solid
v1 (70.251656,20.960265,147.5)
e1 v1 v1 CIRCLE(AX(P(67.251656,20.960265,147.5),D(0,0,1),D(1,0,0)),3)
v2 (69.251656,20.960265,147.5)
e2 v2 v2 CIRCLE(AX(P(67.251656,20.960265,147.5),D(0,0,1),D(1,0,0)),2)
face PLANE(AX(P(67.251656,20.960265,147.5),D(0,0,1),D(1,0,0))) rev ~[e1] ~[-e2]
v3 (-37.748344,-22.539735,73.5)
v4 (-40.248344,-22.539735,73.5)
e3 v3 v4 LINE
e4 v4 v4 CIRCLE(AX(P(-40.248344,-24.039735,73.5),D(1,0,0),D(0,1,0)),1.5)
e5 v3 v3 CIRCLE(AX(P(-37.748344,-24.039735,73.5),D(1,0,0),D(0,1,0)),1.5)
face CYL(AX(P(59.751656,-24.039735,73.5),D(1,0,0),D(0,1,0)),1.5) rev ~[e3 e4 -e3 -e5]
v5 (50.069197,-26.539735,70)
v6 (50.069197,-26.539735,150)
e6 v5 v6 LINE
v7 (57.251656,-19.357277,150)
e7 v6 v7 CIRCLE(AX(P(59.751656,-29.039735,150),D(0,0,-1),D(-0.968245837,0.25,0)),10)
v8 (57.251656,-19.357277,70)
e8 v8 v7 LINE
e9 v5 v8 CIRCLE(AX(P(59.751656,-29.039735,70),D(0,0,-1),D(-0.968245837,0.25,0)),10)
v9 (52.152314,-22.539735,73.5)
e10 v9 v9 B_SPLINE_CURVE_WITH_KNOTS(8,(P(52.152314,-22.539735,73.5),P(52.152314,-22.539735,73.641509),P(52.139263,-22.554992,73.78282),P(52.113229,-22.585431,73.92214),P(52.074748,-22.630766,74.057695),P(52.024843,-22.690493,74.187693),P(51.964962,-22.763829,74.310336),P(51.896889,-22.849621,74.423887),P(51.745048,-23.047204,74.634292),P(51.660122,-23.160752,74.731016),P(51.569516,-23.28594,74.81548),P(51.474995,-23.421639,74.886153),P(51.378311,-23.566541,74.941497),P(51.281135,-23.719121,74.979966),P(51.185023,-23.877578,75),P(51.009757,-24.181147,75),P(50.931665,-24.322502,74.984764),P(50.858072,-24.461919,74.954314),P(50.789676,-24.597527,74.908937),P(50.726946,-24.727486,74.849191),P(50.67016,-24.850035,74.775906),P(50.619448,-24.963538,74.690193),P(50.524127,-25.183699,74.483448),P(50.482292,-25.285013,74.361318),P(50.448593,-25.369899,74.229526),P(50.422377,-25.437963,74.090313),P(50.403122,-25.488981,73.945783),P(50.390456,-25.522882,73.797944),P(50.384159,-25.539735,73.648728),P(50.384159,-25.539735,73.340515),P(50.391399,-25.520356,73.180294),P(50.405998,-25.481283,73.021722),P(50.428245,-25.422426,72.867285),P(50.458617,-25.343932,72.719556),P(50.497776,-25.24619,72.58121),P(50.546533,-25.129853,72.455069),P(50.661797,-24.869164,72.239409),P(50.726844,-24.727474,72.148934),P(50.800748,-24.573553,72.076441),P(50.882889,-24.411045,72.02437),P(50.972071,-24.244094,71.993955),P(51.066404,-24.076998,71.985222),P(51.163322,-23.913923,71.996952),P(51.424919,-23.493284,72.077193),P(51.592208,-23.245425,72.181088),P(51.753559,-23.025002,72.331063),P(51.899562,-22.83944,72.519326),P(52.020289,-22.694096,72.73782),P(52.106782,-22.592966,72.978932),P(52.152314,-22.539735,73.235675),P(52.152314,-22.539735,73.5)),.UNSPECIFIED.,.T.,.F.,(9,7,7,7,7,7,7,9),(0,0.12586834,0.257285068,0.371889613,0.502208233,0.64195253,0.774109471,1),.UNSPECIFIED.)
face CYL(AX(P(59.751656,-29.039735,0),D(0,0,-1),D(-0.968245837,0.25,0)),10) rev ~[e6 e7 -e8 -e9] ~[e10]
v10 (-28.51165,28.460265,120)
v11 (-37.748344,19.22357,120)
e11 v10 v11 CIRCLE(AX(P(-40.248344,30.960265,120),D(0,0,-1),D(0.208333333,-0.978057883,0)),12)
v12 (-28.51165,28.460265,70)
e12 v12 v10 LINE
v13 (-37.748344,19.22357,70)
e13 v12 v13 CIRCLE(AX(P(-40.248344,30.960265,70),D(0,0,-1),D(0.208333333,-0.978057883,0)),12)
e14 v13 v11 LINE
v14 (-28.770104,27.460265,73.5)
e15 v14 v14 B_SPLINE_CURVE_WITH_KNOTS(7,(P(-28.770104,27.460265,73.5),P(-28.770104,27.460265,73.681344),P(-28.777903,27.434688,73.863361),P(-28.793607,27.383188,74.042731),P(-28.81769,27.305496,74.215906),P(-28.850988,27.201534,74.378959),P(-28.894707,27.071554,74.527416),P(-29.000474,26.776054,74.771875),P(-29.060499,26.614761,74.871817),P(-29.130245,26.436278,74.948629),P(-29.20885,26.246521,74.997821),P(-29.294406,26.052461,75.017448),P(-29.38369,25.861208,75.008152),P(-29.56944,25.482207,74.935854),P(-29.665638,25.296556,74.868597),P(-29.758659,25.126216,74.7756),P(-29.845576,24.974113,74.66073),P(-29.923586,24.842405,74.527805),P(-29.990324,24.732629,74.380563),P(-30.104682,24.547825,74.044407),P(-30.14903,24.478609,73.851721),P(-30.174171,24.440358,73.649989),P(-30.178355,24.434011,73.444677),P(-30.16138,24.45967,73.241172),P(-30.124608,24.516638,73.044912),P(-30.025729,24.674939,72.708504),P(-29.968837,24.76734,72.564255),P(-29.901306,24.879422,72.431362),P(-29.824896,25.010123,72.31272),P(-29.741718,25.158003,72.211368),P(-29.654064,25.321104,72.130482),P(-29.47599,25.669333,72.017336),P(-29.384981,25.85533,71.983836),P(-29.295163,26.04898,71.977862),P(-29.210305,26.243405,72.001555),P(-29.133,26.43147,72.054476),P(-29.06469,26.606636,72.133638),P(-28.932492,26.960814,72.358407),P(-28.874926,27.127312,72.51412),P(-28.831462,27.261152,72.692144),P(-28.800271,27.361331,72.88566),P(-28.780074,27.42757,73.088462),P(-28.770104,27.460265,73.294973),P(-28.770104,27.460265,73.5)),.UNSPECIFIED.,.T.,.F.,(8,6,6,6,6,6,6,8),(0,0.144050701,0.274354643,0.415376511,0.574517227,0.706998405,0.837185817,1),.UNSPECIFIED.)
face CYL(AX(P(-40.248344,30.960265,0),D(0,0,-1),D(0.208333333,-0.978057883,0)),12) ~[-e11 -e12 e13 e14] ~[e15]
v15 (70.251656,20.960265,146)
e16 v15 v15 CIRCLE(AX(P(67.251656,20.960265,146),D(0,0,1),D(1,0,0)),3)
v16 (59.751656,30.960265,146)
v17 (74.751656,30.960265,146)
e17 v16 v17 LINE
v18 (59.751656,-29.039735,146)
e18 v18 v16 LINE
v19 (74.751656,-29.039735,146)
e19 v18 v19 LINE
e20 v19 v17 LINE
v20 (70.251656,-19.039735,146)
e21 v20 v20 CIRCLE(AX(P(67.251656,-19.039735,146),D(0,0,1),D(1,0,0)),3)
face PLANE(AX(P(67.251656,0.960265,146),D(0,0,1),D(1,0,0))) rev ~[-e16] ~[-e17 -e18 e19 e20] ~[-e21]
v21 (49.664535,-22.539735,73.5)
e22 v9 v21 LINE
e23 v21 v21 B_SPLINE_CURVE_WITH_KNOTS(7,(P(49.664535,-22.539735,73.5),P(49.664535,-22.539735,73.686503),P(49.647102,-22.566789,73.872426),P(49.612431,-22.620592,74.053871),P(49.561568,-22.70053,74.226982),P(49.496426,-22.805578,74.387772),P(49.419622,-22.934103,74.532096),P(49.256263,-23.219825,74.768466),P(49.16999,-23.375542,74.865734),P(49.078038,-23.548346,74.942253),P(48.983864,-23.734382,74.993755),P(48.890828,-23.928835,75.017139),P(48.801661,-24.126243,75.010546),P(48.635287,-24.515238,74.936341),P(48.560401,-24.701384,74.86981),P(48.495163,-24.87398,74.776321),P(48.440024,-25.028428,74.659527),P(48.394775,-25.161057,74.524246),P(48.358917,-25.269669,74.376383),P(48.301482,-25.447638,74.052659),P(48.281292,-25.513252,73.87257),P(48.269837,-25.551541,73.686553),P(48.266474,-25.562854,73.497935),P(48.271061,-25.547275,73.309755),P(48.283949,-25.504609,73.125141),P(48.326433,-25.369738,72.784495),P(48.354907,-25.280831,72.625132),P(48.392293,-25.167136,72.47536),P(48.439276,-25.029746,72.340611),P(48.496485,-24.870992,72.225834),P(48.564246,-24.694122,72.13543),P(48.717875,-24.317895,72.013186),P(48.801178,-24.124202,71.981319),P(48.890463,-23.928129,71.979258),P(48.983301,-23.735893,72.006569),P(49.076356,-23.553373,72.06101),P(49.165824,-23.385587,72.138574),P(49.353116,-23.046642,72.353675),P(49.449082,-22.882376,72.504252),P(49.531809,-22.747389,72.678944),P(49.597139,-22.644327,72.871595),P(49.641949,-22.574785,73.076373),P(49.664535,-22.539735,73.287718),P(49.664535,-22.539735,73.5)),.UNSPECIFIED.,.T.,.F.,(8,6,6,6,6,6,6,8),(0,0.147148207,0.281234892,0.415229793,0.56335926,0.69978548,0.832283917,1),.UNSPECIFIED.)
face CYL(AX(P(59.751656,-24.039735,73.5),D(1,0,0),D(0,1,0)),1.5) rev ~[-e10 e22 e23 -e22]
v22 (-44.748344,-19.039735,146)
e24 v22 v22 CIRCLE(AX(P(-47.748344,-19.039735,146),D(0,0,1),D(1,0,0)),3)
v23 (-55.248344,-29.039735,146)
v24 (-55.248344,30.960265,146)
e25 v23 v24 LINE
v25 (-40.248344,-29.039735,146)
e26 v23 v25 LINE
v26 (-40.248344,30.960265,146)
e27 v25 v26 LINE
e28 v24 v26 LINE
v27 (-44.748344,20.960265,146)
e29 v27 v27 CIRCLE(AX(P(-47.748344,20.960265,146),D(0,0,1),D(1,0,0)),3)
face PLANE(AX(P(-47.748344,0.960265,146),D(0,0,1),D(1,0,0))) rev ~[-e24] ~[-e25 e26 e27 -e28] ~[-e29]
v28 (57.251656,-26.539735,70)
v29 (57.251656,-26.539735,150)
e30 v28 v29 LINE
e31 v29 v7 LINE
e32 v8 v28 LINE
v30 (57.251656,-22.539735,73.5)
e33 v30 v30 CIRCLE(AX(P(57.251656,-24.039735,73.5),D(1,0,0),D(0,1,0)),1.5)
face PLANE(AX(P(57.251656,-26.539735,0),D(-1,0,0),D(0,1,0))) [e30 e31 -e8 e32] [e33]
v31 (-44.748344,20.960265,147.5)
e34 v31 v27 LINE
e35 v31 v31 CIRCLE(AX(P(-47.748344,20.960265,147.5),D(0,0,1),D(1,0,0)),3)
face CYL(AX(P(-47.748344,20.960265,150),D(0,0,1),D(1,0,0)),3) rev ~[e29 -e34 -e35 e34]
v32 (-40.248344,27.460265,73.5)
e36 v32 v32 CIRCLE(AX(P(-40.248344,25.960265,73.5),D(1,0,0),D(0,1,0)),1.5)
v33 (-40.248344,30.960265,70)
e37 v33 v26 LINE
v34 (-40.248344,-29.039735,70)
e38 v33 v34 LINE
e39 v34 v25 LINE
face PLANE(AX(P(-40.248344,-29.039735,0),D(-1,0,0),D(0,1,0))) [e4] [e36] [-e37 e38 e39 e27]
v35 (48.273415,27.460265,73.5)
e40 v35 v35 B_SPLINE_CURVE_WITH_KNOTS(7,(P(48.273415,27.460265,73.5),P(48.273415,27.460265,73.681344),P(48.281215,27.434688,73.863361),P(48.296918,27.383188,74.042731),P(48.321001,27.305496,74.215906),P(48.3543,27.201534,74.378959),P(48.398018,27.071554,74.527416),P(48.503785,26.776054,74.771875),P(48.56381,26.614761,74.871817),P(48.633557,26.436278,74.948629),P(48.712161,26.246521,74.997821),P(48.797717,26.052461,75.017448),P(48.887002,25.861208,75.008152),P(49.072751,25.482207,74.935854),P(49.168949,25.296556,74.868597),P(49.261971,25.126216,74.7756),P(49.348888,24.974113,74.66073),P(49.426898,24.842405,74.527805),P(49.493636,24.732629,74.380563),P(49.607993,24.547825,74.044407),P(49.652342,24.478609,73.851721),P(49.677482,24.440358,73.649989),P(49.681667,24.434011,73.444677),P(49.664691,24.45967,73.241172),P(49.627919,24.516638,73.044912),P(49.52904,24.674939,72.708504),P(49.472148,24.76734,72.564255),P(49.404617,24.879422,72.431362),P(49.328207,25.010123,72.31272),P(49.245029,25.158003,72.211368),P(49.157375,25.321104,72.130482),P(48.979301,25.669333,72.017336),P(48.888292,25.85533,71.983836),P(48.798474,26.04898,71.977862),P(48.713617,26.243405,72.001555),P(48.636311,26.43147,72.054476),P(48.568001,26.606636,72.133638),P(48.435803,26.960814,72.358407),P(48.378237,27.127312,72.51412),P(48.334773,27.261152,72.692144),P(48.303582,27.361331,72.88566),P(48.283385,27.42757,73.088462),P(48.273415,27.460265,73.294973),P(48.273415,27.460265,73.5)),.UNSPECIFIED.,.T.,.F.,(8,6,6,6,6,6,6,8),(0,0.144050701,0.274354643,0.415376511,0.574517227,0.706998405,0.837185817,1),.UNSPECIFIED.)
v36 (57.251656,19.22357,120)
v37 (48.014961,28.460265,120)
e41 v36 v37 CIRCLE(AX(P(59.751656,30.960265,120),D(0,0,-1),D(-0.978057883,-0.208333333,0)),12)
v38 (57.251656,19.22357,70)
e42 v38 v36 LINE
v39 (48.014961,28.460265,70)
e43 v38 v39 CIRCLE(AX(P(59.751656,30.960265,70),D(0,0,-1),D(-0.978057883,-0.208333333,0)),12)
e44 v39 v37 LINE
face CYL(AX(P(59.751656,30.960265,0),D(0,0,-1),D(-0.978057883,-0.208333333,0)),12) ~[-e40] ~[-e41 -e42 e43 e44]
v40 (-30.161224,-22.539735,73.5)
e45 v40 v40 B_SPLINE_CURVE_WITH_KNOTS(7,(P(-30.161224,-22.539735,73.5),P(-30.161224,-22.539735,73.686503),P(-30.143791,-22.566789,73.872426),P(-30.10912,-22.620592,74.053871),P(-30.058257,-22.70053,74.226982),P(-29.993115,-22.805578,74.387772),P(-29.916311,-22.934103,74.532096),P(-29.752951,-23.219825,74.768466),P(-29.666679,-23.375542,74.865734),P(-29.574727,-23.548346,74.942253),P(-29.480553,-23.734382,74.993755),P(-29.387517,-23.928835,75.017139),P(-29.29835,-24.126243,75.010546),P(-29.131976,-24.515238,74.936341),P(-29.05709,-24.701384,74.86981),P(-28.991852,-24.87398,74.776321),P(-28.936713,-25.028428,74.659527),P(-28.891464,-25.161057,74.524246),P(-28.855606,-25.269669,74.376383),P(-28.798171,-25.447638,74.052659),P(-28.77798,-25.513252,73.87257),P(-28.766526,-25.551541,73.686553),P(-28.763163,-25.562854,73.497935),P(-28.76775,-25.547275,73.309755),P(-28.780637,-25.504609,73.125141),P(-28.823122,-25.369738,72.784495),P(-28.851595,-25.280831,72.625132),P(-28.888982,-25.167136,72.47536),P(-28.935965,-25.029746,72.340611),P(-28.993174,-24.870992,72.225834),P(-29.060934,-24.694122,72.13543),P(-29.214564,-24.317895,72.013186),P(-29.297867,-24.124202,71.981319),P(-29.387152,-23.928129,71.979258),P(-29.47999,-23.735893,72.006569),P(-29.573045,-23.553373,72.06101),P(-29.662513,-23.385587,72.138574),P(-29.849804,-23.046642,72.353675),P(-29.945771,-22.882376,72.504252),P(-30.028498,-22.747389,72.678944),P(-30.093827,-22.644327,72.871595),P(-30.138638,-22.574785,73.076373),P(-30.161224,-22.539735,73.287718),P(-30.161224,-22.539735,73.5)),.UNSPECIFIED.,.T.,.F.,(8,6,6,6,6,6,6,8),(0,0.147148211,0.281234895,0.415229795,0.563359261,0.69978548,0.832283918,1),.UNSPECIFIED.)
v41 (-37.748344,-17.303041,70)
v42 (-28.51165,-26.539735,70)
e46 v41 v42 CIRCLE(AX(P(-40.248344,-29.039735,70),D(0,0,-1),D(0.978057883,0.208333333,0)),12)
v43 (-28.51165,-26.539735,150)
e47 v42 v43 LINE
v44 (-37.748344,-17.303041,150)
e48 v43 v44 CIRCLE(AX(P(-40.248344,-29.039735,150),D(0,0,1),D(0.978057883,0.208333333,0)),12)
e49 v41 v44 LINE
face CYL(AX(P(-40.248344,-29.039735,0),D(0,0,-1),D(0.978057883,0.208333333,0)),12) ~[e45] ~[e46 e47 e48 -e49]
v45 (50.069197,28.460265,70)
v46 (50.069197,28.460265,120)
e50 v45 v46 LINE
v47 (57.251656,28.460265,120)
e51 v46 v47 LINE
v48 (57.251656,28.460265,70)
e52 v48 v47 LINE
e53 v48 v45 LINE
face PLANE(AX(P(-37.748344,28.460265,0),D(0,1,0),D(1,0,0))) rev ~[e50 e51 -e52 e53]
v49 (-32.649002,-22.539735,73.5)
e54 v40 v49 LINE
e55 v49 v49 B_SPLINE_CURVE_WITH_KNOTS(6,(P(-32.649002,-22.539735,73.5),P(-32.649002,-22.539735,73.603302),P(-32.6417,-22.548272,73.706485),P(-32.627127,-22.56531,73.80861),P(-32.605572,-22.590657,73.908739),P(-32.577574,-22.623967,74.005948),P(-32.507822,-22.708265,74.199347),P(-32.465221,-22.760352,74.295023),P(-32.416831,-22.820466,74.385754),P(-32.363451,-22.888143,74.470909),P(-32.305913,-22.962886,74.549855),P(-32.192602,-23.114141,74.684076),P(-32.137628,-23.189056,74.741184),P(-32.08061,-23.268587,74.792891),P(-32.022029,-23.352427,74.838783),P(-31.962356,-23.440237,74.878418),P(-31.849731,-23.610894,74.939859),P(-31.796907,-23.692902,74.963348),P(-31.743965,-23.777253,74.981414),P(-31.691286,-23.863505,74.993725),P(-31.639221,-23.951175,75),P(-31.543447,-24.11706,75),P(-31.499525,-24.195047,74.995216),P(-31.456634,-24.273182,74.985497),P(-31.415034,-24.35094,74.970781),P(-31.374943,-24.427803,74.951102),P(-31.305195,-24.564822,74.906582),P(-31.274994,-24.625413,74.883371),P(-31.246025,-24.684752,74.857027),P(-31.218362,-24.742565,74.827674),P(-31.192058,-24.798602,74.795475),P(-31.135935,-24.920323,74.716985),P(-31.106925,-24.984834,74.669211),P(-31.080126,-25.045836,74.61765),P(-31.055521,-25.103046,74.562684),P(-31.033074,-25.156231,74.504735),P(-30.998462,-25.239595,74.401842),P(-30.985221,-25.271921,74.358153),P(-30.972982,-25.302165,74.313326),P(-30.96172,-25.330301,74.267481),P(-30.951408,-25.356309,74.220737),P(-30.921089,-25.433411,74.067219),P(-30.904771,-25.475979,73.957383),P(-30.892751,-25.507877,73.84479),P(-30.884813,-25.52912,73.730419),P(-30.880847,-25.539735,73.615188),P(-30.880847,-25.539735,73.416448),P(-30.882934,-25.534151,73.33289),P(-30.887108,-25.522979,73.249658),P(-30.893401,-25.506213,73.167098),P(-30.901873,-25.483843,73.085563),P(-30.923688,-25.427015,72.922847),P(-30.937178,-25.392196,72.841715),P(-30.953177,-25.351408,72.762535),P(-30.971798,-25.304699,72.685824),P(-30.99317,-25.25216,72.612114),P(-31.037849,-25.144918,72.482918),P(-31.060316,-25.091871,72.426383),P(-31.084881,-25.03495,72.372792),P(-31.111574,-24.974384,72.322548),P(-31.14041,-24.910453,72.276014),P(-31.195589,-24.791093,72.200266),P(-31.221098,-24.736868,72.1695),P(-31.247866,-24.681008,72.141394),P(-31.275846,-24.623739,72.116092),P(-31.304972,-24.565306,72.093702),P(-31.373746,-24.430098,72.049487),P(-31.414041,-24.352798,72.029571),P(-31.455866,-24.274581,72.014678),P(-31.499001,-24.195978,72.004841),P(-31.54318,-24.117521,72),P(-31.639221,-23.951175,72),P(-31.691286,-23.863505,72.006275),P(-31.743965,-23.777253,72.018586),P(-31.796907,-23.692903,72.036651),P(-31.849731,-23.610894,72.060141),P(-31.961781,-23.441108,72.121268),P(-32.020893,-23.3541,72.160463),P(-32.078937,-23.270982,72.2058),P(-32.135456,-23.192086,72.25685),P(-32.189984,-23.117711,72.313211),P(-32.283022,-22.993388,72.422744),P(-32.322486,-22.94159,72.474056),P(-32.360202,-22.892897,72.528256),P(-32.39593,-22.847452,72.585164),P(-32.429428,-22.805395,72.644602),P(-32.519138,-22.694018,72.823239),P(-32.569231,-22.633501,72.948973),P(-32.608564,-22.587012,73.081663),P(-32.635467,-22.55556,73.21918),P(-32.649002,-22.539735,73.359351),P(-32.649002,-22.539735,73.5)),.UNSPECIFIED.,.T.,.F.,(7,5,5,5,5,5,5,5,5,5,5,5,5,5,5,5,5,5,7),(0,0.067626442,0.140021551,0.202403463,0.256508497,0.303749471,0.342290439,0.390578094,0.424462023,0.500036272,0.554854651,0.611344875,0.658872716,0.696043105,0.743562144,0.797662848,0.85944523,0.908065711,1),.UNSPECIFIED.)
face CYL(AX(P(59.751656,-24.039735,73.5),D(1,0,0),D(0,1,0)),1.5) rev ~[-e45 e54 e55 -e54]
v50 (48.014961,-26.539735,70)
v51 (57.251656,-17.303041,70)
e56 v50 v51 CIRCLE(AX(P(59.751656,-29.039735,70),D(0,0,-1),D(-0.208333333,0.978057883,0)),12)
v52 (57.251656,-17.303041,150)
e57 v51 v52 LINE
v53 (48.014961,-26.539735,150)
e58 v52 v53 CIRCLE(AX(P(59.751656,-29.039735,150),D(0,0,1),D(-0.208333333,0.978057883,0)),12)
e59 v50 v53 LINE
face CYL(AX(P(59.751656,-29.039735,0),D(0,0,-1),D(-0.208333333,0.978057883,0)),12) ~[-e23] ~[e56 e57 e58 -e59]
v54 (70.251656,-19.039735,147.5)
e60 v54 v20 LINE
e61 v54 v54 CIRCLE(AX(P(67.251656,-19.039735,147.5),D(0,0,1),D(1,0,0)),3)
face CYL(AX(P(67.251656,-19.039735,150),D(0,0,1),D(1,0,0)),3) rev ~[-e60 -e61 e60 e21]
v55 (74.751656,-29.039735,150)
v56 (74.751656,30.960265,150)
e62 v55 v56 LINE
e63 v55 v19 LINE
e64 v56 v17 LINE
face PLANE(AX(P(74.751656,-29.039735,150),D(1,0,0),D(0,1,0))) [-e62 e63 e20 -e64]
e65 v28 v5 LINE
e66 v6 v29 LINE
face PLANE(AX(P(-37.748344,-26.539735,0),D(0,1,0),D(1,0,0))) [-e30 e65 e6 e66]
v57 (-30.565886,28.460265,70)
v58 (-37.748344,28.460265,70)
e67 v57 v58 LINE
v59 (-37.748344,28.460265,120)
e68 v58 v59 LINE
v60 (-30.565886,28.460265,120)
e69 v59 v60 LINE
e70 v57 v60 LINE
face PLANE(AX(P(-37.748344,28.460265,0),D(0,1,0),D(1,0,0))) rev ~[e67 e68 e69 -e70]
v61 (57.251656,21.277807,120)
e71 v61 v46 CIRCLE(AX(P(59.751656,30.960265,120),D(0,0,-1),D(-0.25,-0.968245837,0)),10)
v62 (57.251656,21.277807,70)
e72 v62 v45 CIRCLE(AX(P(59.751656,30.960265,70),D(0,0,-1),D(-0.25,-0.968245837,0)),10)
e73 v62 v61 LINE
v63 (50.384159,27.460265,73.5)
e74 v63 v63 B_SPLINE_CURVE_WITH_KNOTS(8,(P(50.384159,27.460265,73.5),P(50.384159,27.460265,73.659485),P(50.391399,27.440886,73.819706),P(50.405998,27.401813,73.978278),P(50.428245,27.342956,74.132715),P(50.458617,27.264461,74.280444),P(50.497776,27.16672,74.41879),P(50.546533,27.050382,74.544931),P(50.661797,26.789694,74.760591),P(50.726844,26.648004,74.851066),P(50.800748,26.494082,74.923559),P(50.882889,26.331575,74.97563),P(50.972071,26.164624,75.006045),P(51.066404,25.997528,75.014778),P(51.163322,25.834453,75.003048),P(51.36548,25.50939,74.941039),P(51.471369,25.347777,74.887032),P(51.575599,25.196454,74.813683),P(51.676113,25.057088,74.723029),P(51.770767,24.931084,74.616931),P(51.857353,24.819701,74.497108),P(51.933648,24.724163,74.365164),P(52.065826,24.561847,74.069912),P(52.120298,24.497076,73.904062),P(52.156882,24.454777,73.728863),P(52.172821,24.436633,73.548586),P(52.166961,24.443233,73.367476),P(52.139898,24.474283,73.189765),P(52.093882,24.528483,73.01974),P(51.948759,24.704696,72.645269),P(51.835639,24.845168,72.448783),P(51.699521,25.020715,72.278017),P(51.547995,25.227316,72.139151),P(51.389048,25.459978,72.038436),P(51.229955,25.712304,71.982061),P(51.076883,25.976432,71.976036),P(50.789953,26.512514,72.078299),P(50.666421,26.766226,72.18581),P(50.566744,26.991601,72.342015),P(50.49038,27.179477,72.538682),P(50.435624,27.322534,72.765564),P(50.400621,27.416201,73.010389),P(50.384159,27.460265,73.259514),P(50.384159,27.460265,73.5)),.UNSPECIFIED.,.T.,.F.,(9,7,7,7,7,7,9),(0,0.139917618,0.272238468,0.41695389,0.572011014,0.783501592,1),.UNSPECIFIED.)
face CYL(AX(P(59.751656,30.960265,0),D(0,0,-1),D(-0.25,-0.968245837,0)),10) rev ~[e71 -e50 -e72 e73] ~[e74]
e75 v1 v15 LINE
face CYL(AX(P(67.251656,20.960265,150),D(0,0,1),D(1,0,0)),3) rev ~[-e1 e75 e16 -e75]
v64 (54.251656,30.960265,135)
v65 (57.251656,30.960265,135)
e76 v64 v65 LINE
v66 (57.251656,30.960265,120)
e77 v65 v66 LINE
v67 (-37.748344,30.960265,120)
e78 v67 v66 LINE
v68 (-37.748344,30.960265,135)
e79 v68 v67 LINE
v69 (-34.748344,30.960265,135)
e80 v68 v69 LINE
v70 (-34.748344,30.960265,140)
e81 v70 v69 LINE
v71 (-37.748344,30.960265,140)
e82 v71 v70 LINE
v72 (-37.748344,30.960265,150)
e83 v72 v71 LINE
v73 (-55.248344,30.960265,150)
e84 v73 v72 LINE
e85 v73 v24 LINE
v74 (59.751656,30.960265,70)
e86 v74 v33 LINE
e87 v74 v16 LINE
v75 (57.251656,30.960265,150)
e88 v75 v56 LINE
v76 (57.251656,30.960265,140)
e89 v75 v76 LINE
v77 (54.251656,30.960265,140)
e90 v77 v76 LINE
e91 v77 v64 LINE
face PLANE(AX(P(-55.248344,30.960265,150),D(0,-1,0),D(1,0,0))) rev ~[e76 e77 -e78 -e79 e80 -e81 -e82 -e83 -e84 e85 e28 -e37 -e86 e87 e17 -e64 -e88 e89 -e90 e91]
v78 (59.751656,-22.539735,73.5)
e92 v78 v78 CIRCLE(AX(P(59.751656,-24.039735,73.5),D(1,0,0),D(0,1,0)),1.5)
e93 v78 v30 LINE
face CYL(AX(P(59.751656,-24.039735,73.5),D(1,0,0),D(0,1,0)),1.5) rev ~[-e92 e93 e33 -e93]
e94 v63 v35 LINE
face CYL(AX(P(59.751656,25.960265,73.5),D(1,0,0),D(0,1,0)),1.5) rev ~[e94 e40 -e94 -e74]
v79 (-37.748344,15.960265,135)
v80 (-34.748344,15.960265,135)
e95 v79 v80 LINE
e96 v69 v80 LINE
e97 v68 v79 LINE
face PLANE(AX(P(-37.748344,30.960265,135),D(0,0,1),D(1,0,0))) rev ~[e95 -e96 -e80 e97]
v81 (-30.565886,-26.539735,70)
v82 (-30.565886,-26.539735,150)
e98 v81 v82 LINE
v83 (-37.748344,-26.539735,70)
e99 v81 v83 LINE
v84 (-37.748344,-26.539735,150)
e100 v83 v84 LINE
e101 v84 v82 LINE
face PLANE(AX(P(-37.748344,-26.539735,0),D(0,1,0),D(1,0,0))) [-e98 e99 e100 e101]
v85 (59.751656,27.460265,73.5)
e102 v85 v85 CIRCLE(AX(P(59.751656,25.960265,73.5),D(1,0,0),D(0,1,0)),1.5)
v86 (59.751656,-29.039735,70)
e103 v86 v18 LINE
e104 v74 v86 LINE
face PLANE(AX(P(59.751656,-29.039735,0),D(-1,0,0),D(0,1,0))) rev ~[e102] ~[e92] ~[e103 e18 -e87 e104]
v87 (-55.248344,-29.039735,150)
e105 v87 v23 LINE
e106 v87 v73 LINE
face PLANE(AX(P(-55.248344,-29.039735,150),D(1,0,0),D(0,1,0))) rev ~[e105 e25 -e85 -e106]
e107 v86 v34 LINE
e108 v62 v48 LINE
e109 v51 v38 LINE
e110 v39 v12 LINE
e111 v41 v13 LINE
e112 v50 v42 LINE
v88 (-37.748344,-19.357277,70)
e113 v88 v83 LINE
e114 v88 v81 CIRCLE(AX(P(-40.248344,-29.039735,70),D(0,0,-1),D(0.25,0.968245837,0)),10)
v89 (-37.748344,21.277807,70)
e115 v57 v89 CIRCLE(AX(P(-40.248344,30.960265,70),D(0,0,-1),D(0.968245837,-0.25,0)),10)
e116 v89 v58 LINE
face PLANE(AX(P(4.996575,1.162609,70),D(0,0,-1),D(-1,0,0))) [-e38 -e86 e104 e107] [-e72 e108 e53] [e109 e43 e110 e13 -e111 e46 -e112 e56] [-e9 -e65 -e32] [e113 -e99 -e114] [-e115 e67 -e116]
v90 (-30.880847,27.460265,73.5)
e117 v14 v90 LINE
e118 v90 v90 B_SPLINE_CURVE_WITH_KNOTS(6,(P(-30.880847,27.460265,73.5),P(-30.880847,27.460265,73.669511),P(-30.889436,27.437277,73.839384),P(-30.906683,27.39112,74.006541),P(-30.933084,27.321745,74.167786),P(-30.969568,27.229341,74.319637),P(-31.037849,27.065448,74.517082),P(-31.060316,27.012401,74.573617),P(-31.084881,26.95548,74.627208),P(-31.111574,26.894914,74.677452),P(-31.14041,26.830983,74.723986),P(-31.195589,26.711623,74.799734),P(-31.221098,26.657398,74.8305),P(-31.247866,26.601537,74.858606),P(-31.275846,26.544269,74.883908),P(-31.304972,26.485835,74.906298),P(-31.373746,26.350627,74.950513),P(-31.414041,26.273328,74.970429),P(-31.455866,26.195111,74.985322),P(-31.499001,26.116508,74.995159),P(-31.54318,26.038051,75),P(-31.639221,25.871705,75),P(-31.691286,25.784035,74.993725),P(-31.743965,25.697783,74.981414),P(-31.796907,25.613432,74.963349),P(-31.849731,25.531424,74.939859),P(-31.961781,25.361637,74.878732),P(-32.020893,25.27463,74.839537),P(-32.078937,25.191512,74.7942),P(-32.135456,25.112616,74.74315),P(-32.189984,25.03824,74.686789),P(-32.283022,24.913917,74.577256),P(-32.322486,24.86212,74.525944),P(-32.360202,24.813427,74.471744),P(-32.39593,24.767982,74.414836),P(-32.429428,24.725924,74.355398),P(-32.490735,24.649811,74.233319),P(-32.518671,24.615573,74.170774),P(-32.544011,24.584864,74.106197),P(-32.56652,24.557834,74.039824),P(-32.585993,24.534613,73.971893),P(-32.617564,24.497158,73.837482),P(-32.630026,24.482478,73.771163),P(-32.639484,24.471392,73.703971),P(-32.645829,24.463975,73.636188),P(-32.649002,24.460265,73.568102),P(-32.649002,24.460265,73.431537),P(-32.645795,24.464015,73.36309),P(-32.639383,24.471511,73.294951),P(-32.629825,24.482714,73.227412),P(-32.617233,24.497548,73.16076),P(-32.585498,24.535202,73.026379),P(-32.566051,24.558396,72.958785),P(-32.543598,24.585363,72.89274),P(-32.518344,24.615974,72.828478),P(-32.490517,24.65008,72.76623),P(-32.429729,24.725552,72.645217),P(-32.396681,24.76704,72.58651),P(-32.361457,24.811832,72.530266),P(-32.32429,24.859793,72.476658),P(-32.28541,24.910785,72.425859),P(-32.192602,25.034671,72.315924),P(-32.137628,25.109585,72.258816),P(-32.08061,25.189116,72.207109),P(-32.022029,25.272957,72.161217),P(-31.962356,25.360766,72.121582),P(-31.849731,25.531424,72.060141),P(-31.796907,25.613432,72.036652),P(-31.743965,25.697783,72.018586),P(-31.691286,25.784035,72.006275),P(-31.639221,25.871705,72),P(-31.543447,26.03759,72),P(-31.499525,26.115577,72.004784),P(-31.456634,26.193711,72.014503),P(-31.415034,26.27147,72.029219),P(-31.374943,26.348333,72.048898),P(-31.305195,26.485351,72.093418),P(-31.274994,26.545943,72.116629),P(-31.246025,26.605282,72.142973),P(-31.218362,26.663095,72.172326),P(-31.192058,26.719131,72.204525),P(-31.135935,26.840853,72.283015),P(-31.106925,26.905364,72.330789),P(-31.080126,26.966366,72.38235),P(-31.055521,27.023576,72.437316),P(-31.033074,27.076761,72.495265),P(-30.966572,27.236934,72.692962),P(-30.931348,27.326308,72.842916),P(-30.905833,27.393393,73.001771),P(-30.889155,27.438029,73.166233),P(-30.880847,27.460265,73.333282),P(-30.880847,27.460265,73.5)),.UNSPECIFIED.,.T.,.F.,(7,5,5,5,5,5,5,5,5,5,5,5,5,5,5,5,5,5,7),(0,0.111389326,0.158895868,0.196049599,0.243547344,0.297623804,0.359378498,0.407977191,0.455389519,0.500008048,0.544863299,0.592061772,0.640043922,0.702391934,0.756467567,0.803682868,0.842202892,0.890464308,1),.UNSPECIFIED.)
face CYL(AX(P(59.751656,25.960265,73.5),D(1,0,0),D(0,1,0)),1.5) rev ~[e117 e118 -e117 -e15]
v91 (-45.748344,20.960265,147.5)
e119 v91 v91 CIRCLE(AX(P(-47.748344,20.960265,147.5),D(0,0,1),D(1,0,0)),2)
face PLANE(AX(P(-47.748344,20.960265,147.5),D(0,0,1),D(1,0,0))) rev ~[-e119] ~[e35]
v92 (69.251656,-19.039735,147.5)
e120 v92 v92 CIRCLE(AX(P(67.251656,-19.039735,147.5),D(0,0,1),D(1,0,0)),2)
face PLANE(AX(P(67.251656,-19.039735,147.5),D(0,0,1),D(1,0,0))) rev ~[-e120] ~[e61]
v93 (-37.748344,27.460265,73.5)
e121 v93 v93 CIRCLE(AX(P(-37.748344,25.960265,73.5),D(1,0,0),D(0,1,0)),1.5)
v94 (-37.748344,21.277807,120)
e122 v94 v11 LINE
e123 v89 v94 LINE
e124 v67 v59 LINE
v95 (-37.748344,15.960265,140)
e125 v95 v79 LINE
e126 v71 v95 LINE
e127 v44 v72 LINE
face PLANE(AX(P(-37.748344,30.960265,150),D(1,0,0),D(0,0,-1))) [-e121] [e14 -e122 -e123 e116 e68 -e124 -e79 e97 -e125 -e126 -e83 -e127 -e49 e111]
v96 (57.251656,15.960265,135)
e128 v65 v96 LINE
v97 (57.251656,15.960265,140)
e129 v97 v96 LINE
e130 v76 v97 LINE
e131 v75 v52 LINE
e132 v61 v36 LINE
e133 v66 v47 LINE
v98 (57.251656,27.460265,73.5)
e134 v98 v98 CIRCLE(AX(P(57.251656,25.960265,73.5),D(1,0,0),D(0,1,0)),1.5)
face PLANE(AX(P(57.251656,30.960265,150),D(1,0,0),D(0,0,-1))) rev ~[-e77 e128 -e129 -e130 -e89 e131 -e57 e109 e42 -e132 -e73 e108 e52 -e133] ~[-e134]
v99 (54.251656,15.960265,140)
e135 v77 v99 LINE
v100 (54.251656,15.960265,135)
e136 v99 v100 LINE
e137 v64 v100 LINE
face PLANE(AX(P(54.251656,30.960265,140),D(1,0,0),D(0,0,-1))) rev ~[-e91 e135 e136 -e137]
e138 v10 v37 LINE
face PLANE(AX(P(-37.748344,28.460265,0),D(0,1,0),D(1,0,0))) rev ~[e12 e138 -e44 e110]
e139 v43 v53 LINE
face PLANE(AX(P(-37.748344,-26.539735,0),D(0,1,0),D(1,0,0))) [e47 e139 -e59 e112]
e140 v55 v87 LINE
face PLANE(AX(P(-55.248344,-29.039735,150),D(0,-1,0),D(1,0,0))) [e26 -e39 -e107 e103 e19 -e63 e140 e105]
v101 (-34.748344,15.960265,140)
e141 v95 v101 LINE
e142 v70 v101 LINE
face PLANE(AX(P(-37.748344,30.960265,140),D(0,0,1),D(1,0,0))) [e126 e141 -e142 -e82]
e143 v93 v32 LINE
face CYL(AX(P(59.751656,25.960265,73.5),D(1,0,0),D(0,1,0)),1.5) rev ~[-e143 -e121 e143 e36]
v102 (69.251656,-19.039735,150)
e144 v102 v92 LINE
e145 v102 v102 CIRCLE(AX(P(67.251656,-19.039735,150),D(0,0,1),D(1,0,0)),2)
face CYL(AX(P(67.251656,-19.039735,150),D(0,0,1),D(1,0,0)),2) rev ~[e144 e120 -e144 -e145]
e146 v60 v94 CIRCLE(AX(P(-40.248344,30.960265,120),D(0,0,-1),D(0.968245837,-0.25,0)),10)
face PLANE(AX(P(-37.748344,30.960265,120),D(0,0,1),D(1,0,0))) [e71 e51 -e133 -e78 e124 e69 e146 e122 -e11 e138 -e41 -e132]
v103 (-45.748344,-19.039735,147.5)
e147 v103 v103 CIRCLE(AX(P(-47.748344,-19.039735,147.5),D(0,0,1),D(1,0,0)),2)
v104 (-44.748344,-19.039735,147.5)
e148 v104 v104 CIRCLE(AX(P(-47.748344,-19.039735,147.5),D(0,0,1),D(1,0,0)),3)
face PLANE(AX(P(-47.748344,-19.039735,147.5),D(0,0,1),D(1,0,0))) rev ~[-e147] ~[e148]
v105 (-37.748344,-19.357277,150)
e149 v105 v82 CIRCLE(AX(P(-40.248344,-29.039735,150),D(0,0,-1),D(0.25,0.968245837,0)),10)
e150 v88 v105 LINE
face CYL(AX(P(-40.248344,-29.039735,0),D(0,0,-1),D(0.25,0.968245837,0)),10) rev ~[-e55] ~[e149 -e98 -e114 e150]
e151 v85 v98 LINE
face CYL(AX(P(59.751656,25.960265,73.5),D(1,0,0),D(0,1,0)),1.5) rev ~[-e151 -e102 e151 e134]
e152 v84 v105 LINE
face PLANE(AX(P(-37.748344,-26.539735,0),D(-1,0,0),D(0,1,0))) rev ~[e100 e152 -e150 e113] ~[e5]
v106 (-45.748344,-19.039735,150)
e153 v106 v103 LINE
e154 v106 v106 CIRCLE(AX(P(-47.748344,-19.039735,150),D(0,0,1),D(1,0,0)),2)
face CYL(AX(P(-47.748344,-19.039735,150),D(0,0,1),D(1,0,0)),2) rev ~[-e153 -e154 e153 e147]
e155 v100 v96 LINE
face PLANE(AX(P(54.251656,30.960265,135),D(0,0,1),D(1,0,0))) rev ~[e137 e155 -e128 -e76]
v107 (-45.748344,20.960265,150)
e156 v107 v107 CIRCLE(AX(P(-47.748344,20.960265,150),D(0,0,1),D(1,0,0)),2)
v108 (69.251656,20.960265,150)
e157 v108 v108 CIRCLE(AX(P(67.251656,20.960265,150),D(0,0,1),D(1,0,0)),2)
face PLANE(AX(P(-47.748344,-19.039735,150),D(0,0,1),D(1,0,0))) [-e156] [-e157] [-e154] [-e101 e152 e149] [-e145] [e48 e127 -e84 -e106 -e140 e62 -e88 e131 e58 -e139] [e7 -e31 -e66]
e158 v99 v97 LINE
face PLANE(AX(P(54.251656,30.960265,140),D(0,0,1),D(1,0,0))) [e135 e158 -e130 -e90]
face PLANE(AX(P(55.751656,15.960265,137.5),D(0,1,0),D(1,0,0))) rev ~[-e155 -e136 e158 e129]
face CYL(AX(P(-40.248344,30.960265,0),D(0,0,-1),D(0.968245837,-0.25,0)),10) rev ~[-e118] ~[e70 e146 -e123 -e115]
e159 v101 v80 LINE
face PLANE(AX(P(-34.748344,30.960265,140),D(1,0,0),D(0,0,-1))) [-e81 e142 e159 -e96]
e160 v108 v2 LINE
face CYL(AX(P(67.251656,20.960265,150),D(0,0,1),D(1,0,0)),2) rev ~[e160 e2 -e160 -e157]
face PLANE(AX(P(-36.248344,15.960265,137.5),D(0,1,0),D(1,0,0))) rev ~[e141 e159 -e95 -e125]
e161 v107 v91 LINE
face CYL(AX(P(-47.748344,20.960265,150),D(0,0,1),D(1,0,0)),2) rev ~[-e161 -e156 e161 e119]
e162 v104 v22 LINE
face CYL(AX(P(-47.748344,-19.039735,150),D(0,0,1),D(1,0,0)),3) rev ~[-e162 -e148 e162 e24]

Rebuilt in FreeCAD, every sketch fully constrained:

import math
import FreeCAD as App
import Part
import Sketcher

V = App.Vector

doc = App.newDocument("Part")
body = doc.addObject("PartDesign::Body", "Body")

sketch1 = body.newObject("Sketcher::SketchObject", "Sketch")
sketch1.AttachmentSupport = (doc.getObject("XY_Plane"), [""])
sketch1.MapMode = "FlatFace"
sketch1.addGeometry([
    Part.LineSegment(V(-40, 31, 0), V(-40, -29, 0)),
    Part.LineSegment(V(-40, -29, 0), V(60, -29, 0)),
    Part.LineSegment(V(60, -29, 0), V(60, 31, 0)),
    Part.LineSegment(V(60, 31, 0), V(-40, 31, 0)),
    Part.LineSegment(V(-31, -27, 0), V(-38, -27, 0)),
    Part.LineSegment(V(-38, -27, 0), V(-38, -19, 0)),
    Part.ArcOfCircle(Part.Circle(V(-40, -29, 0), V(0, 0, 1), 10), math.radians(14), math.radians(76)),
    Part.LineSegment(V(48, -27, 0), V(-29, -27, 0)),
    Part.ArcOfCircle(Part.Circle(V(-40, -29, 0), V(0, 0, 1), 12), math.radians(12), math.radians(78)),
    Part.LineSegment(V(-38, -17, 0), V(-38, 19, 0)),
    Part.ArcOfCircle(Part.Circle(V(-40, 31, 0), V(0, 0, 1), 12), math.radians(-78), math.radians(-12)),
    Part.LineSegment(V(-29, 28, 0), V(48, 28, 0)),
    Part.ArcOfCircle(Part.Circle(V(60, 31, 0), V(0, 0, 1), 12), math.radians(-168), math.radians(-102)),
    Part.LineSegment(V(57, 19, 0), V(57, -17, 0)),
    Part.ArcOfCircle(Part.Circle(V(60, -29, 0), V(0, 0, 1), 12), math.radians(102), math.radians(168)),
    Part.LineSegment(V(57, -27, 0), V(50, -27, 0)),
    Part.ArcOfCircle(Part.Circle(V(60, -29, 0), V(0, 0, 1), 10), math.radians(104), math.radians(166)),
    Part.LineSegment(V(57, -19, 0), V(57, -27, 0)),
    Part.LineSegment(V(57, 28, 0), V(57, 21, 0)),
    Part.ArcOfCircle(Part.Circle(V(60, 31, 0), V(0, 0, 1), 10), math.radians(-166), math.radians(-104)),
    Part.LineSegment(V(50, 28, 0), V(57, 28, 0)),
    Part.LineSegment(V(-38, 28, 0), V(-31, 28, 0)),
    Part.ArcOfCircle(Part.Circle(V(-40, 31, 0), V(0, 0, 1), 10), math.radians(-76), math.radians(-14)),
    Part.LineSegment(V(-38, 21, 0), V(-38, 28, 0)),
], False)
sketch1.addConstraint([
    Sketcher.Constraint("Coincident", 0, 2, 1, 1),
    Sketcher.Constraint("Coincident", 1, 2, 2, 1),
    Sketcher.Constraint("Coincident", 2, 2, 3, 1),
    Sketcher.Constraint("Coincident", 3, 2, 0, 1),
    Sketcher.Constraint("Coincident", 4, 2, 5, 1),
    Sketcher.Constraint("Coincident", 5, 2, 6, 2),
    Sketcher.Constraint("Coincident", 6, 1, 4, 1),
    Sketcher.Constraint("Coincident", 7, 2, 8, 1),
    Sketcher.Constraint("Coincident", 8, 2, 9, 1),
    Sketcher.Constraint("Coincident", 9, 2, 10, 1),
    Sketcher.Constraint("Coincident", 10, 2, 11, 1),
    Sketcher.Constraint("Coincident", 11, 2, 12, 1),
    Sketcher.Constraint("Coincident", 12, 2, 13, 1),
    Sketcher.Constraint("Coincident", 13, 2, 14, 1),
    Sketcher.Constraint("Coincident", 14, 2, 7, 1),
    Sketcher.Constraint("Coincident", 15, 2, 16, 2),
    Sketcher.Constraint("Coincident", 16, 1, 17, 1),
    Sketcher.Constraint("Coincident", 17, 2, 15, 1),
    Sketcher.Constraint("Coincident", 18, 2, 19, 2),
    Sketcher.Constraint("Coincident", 19, 1, 20, 1),
    Sketcher.Constraint("Coincident", 20, 2, 18, 1),
    Sketcher.Constraint("Coincident", 21, 2, 22, 2),
    Sketcher.Constraint("Coincident", 22, 1, 23, 1),
    Sketcher.Constraint("Coincident", 23, 2, 21, 1),
    Sketcher.Constraint("Vertical", 0),
    Sketcher.Constraint("Horizontal", 1),
    Sketcher.Constraint("Vertical", 2),
    Sketcher.Constraint("Horizontal", 3),
    Sketcher.Constraint("Horizontal", 4),
    Sketcher.Constraint("Vertical", 5),
    Sketcher.Constraint("Horizontal", 7),
    Sketcher.Constraint("Vertical", 9),
    Sketcher.Constraint("Horizontal", 11),
    Sketcher.Constraint("Vertical", 13),
    Sketcher.Constraint("Horizontal", 15),
    Sketcher.Constraint("Vertical", 17),
    Sketcher.Constraint("Vertical", 18),
    Sketcher.Constraint("Horizontal", 20),
    Sketcher.Constraint("Horizontal", 21),
    Sketcher.Constraint("Vertical", 23),
    Sketcher.Constraint("Coincident", 8, 3, 6, 3),
    Sketcher.Constraint("Coincident", 16, 3, 14, 3),
    Sketcher.Constraint("Coincident", 19, 3, 12, 3),
    Sketcher.Constraint("Coincident", 22, 3, 10, 3),
    Sketcher.Constraint("Coincident", 0, 2, 6, 3),
    Sketcher.Constraint("Coincident", 1, 2, 14, 3),
    Sketcher.Constraint("Coincident", 2, 2, 12, 3),
    Sketcher.Constraint("Coincident", 3, 2, 10, 3),
    Sketcher.Constraint("Equal", 8, 10),
    Sketcher.Constraint("Equal", 10, 12),
    Sketcher.Constraint("Equal", 12, 14),
    Sketcher.Constraint("Equal", 6, 16),
    Sketcher.Constraint("Equal", 16, 19),
    Sketcher.Constraint("Equal", 19, 22),
    Sketcher.Constraint("Horizontal", 6, 1, 7, 2),
    Sketcher.Constraint("Horizontal", 9, 2, 12, 2),
    Sketcher.Constraint("Horizontal", 14, 2, 15, 2),
    Sketcher.Constraint("Horizontal", 5, 2, 16, 1),
    Sketcher.Constraint("Horizontal", 11, 2, 19, 1),
    Sketcher.Constraint("Horizontal", 20, 2, 21, 2),
    Sketcher.Constraint("Horizontal", 18, 2, 22, 1),
    Sketcher.Constraint("Vertical", 5, 2, 8, 2),
    Sketcher.Constraint("Vertical", 7, 2, 10, 2),
    Sketcher.Constraint("Vertical", 17, 2, 18, 2),
    Sketcher.Constraint("Equal", 21, 5),
    Sketcher.Constraint("Radius", 6, 10.0),
    Sketcher.Constraint("Radius", 8, 12.0),
    Sketcher.Constraint("DistanceX", 1, 1, 1, 2, 100.0),
    Sketcher.Constraint("DistanceY", 0, 2, 0, 1, 60.0),
    Sketcher.Constraint("DistanceX", 6, 3, 4, 2, 2.5),
    Sketcher.Constraint("DistanceX", 7, 2, -1, 1, 28.51165),
    Sketcher.Constraint("DistanceY", 8, 2, -1, 1, 17.303041),
])
pad1 = body.newObject("PartDesign::Pad", "Pad")
pad1.Profile = sketch1
pad1.Length = 150

sketch2 = body.newObject("Sketcher::SketchObject", "Sketch001")
sketch2.AttachmentSupport = (doc.getObject("XZ_Plane"), [""])
sketch2.MapMode = "FlatFace"
sketch2.AttachmentOffset = App.Placement(V(0, 0, -30.960265), App.Rotation())
sketch2.addGeometry([
    Part.LineSegment(V(-38, 120, 0), V(-38, 150, 0)),
    Part.LineSegment(V(-38, 150, 0), V(57, 150, 0)),
    Part.LineSegment(V(57, 150, 0), V(57, 120, 0)),
    Part.LineSegment(V(57, 120, 0), V(-38, 120, 0)),
], False)
sketch2.addConstraint([
    Sketcher.Constraint("Coincident", 0, 2, 1, 1),
    Sketcher.Constraint("Coincident", 1, 2, 2, 1),
    Sketcher.Constraint("Coincident", 2, 2, 3, 1),
    Sketcher.Constraint("Coincident", 3, 2, 0, 1),
    Sketcher.Constraint("Vertical", 0),
    Sketcher.Constraint("Horizontal", 1),
    Sketcher.Constraint("Vertical", 2),
    Sketcher.Constraint("Horizontal", 3),
    Sketcher.Constraint("DistanceX", 1, 1, 1, 2, 95.0),
    Sketcher.Constraint("DistanceY", 0, 1, 0, 2, 30.0),
    Sketcher.Constraint("DistanceY", -1, 1, 0, 2, 150.0),
    Sketcher.Constraint("DistanceX", 0, 2, -1, 1, 37.748344),
])
pocket1 = body.newObject("PartDesign::Pocket", "Pocket")
pocket1.Profile = sketch2
pocket1.Length = 20
pocket1.Reversed = True

sketch3 = body.newObject("Sketcher::SketchObject", "Sketch002")
sketch3.AttachmentSupport = (doc.getObject("XY_Plane"), [""])
sketch3.MapMode = "FlatFace"
sketch3.addGeometry([
    Part.LineSegment(V(63, 34, 0), V(63, -32, 0)),
    Part.LineSegment(V(63, -32, 0), V(-43, -32, 0)),
    Part.LineSegment(V(-43, -32, 0), V(-43, 34, 0)),
    Part.LineSegment(V(-43, 34, 0), V(63, 34, 0)),
    Part.LineSegment(V(-40, -29, 0), V(60, -29, 0)),
    Part.LineSegment(V(60, -29, 0), V(60, 31, 0)),
    Part.LineSegment(V(60, 31, 0), V(-40, 31, 0)),
    Part.LineSegment(V(-40, 31, 0), V(-40, -29, 0)),
], False)
sketch3.addConstraint([
    Sketcher.Constraint("Coincident", 0, 2, 1, 1),
    Sketcher.Constraint("Coincident", 1, 2, 2, 1),
    Sketcher.Constraint("Coincident", 2, 2, 3, 1),
    Sketcher.Constraint("Coincident", 3, 2, 0, 1),
    Sketcher.Constraint("Coincident", 4, 2, 5, 1),
    Sketcher.Constraint("Coincident", 5, 2, 6, 1),
    Sketcher.Constraint("Coincident", 6, 2, 7, 1),
    Sketcher.Constraint("Coincident", 7, 2, 4, 1),
    Sketcher.Constraint("Vertical", 0),
    Sketcher.Constraint("Horizontal", 1),
    Sketcher.Constraint("Vertical", 2),
    Sketcher.Constraint("Horizontal", 3),
    Sketcher.Constraint("Horizontal", 4),
    Sketcher.Constraint("Vertical", 5),
    Sketcher.Constraint("Horizontal", 6),
    Sketcher.Constraint("Vertical", 7),
    Sketcher.Constraint("DistanceX", 1, 2, 1, 1, 106.0),
    Sketcher.Constraint("DistanceX", 4, 1, 4, 2, 100.0),
    Sketcher.Constraint("DistanceY", 0, 2, 0, 1, 66.0),
    Sketcher.Constraint("DistanceY", 5, 1, 5, 2, 60.0),
    Sketcher.Constraint("DistanceX", 4, 2, 0, 2, 3.0),
    Sketcher.Constraint("DistanceY", 0, 2, 4, 2, 3.0),
    Sketcher.Constraint("DistanceX", -1, 1, 0, 2, 62.751656),
    Sketcher.Constraint("DistanceY", 0, 2, -1, 1, 32.039735),
])
pad2 = body.newObject("PartDesign::Pad", "Pad001")
pad2.Profile = sketch3
pad2.Type = "TwoLengths"
pad2.Length = 13
pad2.Length2 = 5
pad2.Reversed = True

sketch4 = body.newObject("Sketcher::SketchObject", "Sketch003")
sketch4.AttachmentSupport = (doc.getObject("YZ_Plane"), [""])
sketch4.MapMode = "FlatFace"
sketch4.AttachmentOffset = App.Placement(V(0, 0, -43.248344), App.Rotation())
sketch4.addGeometry([
    Part.Circle(V(-24, -4, 0), V(0, 0, 1), 1.5),
    Part.Circle(V(26, -4, 0), V(0, 0, 1), 1.5),
], False)
sketch4.addConstraint([
    Sketcher.Constraint("Equal", 0, 1),
    Sketcher.Constraint("Horizontal", 0, 3, 1, 3),
    Sketcher.Constraint("Diameter", 0, 3.0),
    Sketcher.Constraint("DistanceY", 0, 3, -1, 1, 4.0),
    Sketcher.Constraint("DistanceX", 0, 3, 1, 3, 50.0),
    Sketcher.Constraint("DistanceX", 0, 3, -1, 1, 24.039735),
])
pocket2 = body.newObject("PartDesign::Pocket", "Pocket001")
pocket2.Profile = sketch4
pocket2.Length = 120
pocket2.Reversed = True

sketch5 = body.newObject("Sketcher::SketchObject", "Sketch004")
sketch5.AttachmentSupport = (doc.getObject("YZ_Plane"), [""])
sketch5.MapMode = "FlatFace"
sketch5.AttachmentOffset = App.Placement(V(0, 0, 62.751656), App.Rotation())
sketch5.addGeometry([
    Part.Circle(V(-24, -4, 0), V(0, 0, 1), 3),
    Part.Circle(V(26, -4, 0), V(0, 0, 1), 3),
], False)
sketch5.addConstraint([
    Sketcher.Constraint("Equal", 0, 1),
    Sketcher.Constraint("Horizontal", 0, 3, 1, 3),
    Sketcher.Constraint("Diameter", 0, 6.0),
    Sketcher.Constraint("DistanceY", 0, 3, -1, 1, 4.0),
    Sketcher.Constraint("DistanceX", 0, 3, 1, 3, 50.0),
    Sketcher.Constraint("DistanceX", 0, 3, -1, 1, 24.039735),
])
pocket3 = body.newObject("PartDesign::Pocket", "Pocket002")
pocket3.Profile = sketch5
pocket3.Length = 1

sketch6 = body.newObject("Sketcher::SketchObject", "Sketch005")
sketch6.AttachmentSupport = (doc.getObject("YZ_Plane"), [""])
sketch6.MapMode = "FlatFace"
sketch6.AttachmentOffset = App.Placement(V(0, 0, -42.248344), App.Rotation())
sketch6.addGeometry([
    Part.Circle(V(26, -4, 0), V(0, 0, 1), 3),
    Part.Circle(V(-24.1, -4, 0), V(0, 0, 1), 3),
], False)
sketch6.addConstraint([
    Sketcher.Constraint("Equal", 0, 1),
    Sketcher.Constraint("Horizontal", 0, 3, 1, 3),
    Sketcher.Constraint("Diameter", 0, 6.0),
    Sketcher.Constraint("DistanceY", 0, 3, -1, 1, 4.0),
    Sketcher.Constraint("DistanceX", 1, 3, 0, 3, 50.047949),
    Sketcher.Constraint("DistanceX", -1, 1, 0, 3, 25.960265),
])
pocket4 = body.newObject("PartDesign::Pocket", "Pocket003")
pocket4.Profile = sketch6
pocket4.Length = 1

sketch7 = body.newObject("Sketcher::SketchObject", "Sketch006")
sketch7.AttachmentSupport = (doc.getObject("XY_Plane"), [""])
sketch7.MapMode = "FlatFace"
sketch7.AttachmentOffset = App.Placement(V(0, 0, -13), App.Rotation())
sketch7.addGeometry([
    Part.LineSegment(V(84, 51, 0), V(84, -49, 0)),
    Part.LineSegment(V(84, -49, 0), V(-74, -49, 0)),
    Part.LineSegment(V(-74, -49, 0), V(-74, 51, 0)),
    Part.LineSegment(V(-74, 51, 0), V(84, 51, 0)),
], False)
sketch7.addConstraint([
    Sketcher.Constraint("Coincident", 0, 2, 1, 1),
    Sketcher.Constraint("Coincident", 1, 2, 2, 1),
    Sketcher.Constraint("Coincident", 2, 2, 3, 1),
    Sketcher.Constraint("Coincident", 3, 2, 0, 1),
    Sketcher.Constraint("Vertical", 0),
    Sketcher.Constraint("Horizontal", 1),
    Sketcher.Constraint("Vertical", 2),
    Sketcher.Constraint("Horizontal", 3),
    Sketcher.Constraint("DistanceX", 1, 2, 1, 1, 157.221192),
    Sketcher.Constraint("DistanceY", 0, 2, 0, 1, 99.553187),
    Sketcher.Constraint("DistanceX", -1, 1, 0, 2, 83.60717),
    Sketcher.Constraint("DistanceY", 0, 2, -1, 1, 48.613985),
])
pocket5 = body.newObject("PartDesign::Pocket", "Pocket004")
pocket5.Profile = sketch7
pocket5.Length = 83
pocket5.Reversed = True

sketch8 = body.newObject("Sketcher::SketchObject", "Sketch007")
sketch8.AttachmentSupport = (doc.getObject("YZ_Plane"), [""])
sketch8.MapMode = "FlatFace"
sketch8.AttachmentOffset = App.Placement(V(0, 0, 59.751656), App.Rotation())
sketch8.addGeometry([
    Part.Circle(V(-24, 73.5, 0), V(0, 0, 1), 1.5),
    Part.Circle(V(26, 73.5, 0), V(0, 0, 1), 1.5),
], False)
sketch8.addConstraint([
    Sketcher.Constraint("Equal", 0, 1),
    Sketcher.Constraint("Horizontal", 0, 3, 1, 3),
    Sketcher.Constraint("Diameter", 0, 3.0),
    Sketcher.Constraint("DistanceX", 0, 3, 1, 3, 50.0),
    Sketcher.Constraint("DistanceY", -1, 1, 0, 3, 73.5),
    Sketcher.Constraint("DistanceX", 0, 3, -1, 1, 24.039735),
])
pocket6 = body.newObject("PartDesign::Pocket", "Pocket005")
pocket6.Profile = sketch8
pocket6.Length = 120

sketch9 = body.newObject("Sketcher::SketchObject", "Sketch008")
sketch9.AttachmentSupport = (doc.getObject("XZ_Plane"), [""])
sketch9.MapMode = "FlatFace"
sketch9.AttachmentOffset = App.Placement(V(0, 0, -30.960265), App.Rotation())
sketch9.addGeometry([
    Part.LineSegment(V(-37.7, 135, 0), V(-37.7, 140, 0)),
    Part.LineSegment(V(-37.7, 140, 0), V(-34.7, 140, 0)),
    Part.LineSegment(V(-34.7, 140, 0), V(-34.7, 135, 0)),
    Part.LineSegment(V(-34.7, 135, 0), V(-37.7, 135, 0)),
    Part.LineSegment(V(54.3, 135, 0), V(54.3, 140, 0)),
    Part.LineSegment(V(54.3, 140, 0), V(57.3, 140, 0)),
    Part.LineSegment(V(57.3, 140, 0), V(57.3, 135, 0)),
    Part.LineSegment(V(57.3, 135, 0), V(54.3, 135, 0)),
], False)
sketch9.addConstraint([
    Sketcher.Constraint("Coincident", 0, 2, 1, 1),
    Sketcher.Constraint("Coincident", 1, 2, 2, 1),
    Sketcher.Constraint("Coincident", 2, 2, 3, 1),
    Sketcher.Constraint("Coincident", 3, 2, 0, 1),
    Sketcher.Constraint("Coincident", 4, 2, 5, 1),
    Sketcher.Constraint("Coincident", 5, 2, 6, 1),
    Sketcher.Constraint("Coincident", 6, 2, 7, 1),
    Sketcher.Constraint("Coincident", 7, 2, 4, 1),
    Sketcher.Constraint("Vertical", 0),
    Sketcher.Constraint("Horizontal", 1),
    Sketcher.Constraint("Vertical", 2),
    Sketcher.Constraint("Horizontal", 3),
    Sketcher.Constraint("Vertical", 4),
    Sketcher.Constraint("Horizontal", 5),
    Sketcher.Constraint("Vertical", 6),
    Sketcher.Constraint("Horizontal", 7),
    Sketcher.Constraint("Horizontal", 1, 2, 4, 2),
    Sketcher.Constraint("Horizontal", 3, 2, 6, 2),
    Sketcher.Constraint("Equal", 3, 5),
    Sketcher.Constraint("DistanceX", 1, 1, 1, 2, 3.0),
    Sketcher.Constraint("DistanceY", 0, 1, 0, 2, 5.0),
    Sketcher.Constraint("DistanceY", -1, 1, 0, 2, 140.0),
    Sketcher.Constraint("DistanceX", 1, 2, 4, 2, 89.0),
    Sketcher.Constraint("DistanceX", 0, 2, -1, 1, 37.748344),
])
pad3 = body.newObject("PartDesign::Pad", "Pad002")
pad3.Profile = sketch9
pad3.Length = 15

sketch10 = body.newObject("Sketcher::SketchObject", "Sketch009")
sketch10.AttachmentSupport = (doc.getObject("XY_Plane"), [""])
sketch10.MapMode = "FlatFace"
sketch10.AttachmentOffset = App.Placement(V(0, 0, 150), App.Rotation())
sketch10.addGeometry([
    Part.LineSegment(V(-55.2, 31, 0), V(-55.2, -29, 0)),
    Part.LineSegment(V(-55.2, -29, 0), V(-40.2, -29, 0)),
    Part.LineSegment(V(-40.2, -29, 0), V(-40.2, 31, 0)),
    Part.LineSegment(V(-40.2, 31, 0), V(-55.2, 31, 0)),
    Part.Circle(V(-47.7, -19, 0), V(0, 0, 1), 3),
    Part.Circle(V(-47.7, 21, 0), V(0, 0, 1), 3),
    Part.LineSegment(V(59.8, 31, 0), V(59.8, -29, 0)),
    Part.LineSegment(V(59.8, -29, 0), V(74.8, -29, 0)),
    Part.LineSegment(V(74.8, -29, 0), V(74.8, 31, 0)),
    Part.LineSegment(V(74.8, 31, 0), V(59.8, 31, 0)),
    Part.Circle(V(67.3, -19, 0), V(0, 0, 1), 3),
    Part.Circle(V(67.3, 21, 0), V(0, 0, 1), 3),
], False)
sketch10.addConstraint([
    Sketcher.Constraint("Coincident", 0, 2, 1, 1),
    Sketcher.Constraint("Coincident", 1, 2, 2, 1),
    Sketcher.Constraint("Coincident", 2, 2, 3, 1),
    Sketcher.Constraint("Coincident", 3, 2, 0, 1),
    Sketcher.Constraint("Coincident", 6, 2, 7, 1),
    Sketcher.Constraint("Coincident", 7, 2, 8, 1),
    Sketcher.Constraint("Coincident", 8, 2, 9, 1),
    Sketcher.Constraint("Coincident", 9, 2, 6, 1),
    Sketcher.Constraint("Vertical", 0),
    Sketcher.Constraint("Horizontal", 1),
    Sketcher.Constraint("Vertical", 2),
    Sketcher.Constraint("Horizontal", 3),
    Sketcher.Constraint("Vertical", 6),
    Sketcher.Constraint("Horizontal", 7),
    Sketcher.Constraint("Vertical", 8),
    Sketcher.Constraint("Horizontal", 9),
    Sketcher.Constraint("Equal", 4, 5),
    Sketcher.Constraint("Equal", 5, 10),
    Sketcher.Constraint("Equal", 10, 11),
    Sketcher.Constraint("Horizontal", 4, 3, 10, 3),
    Sketcher.Constraint("Horizontal", 5, 3, 11, 3),
    Sketcher.Constraint("Horizontal", 1, 2, 6, 2),
    Sketcher.Constraint("Horizontal", 3, 2, 8, 2),
    Sketcher.Constraint("Vertical", 4, 3, 5, 3),
    Sketcher.Constraint("Vertical", 10, 3, 11, 3),
    Sketcher.Constraint("Equal", 3, 7),
    Sketcher.Constraint("Diameter", 4, 6.0),
    Sketcher.Constraint("DistanceX", 1, 1, 1, 2, 15.0),
    Sketcher.Constraint("DistanceY", 0, 2, 0, 1, 60.0),
    Sketcher.Constraint("DistanceY", 4, 3, 5, 3, 40.0),
    Sketcher.Constraint("DistanceX", 4, 3, 10, 3, 115.0),
    Sketcher.Constraint("DistanceY", 0, 2, 4, 3, 10.0),
    Sketcher.Constraint("DistanceX", 1, 2, 6, 2, 100.0),
    Sketcher.Constraint("DistanceX", 0, 2, 4, 3, 7.5),
    Sketcher.Constraint("DistanceX", 4, 3, -1, 1, 47.748344),
    Sketcher.Constraint("DistanceY", 4, 3, -1, 1, 19.039735),
])
pad4 = body.newObject("PartDesign::Pad", "Pad003")
pad4.Profile = sketch10
pad4.Length = 4
pad4.Reversed = True

sketch11 = body.newObject("Sketcher::SketchObject", "Sketch010")
sketch11.AttachmentSupport = (doc.getObject("XY_Plane"), [""])
sketch11.MapMode = "FlatFace"
sketch11.AttachmentOffset = App.Placement(V(0, 0, 150), App.Rotation())
sketch11.addGeometry([
    Part.Circle(V(-47.7, -19, 0), V(0, 0, 1), 3),
    Part.Circle(V(-47.7, -19, 0), V(0, 0, 1), 2),
    Part.Circle(V(-47.7, 21, 0), V(0, 0, 1), 3),
    Part.Circle(V(-47.7, 21, 0), V(0, 0, 1), 2),
    Part.Circle(V(67.3, 21, 0), V(0, 0, 1), 3),
    Part.Circle(V(67.3, 21, 0), V(0, 0, 1), 2),
    Part.Circle(V(67.3, -19, 0), V(0, 0, 1), 3),
    Part.Circle(V(67.3, -19, 0), V(0, 0, 1), 2),
], False)
sketch11.addConstraint([
    Sketcher.Constraint("Coincident", 1, 3, 0, 3),
    Sketcher.Constraint("Coincident", 3, 3, 2, 3),
    Sketcher.Constraint("Coincident", 5, 3, 4, 3),
    Sketcher.Constraint("Coincident", 7, 3, 6, 3),
    Sketcher.Constraint("Equal", 0, 2),
    Sketcher.Constraint("Equal", 1, 3),
    Sketcher.Constraint("Equal", 2, 4),
    Sketcher.Constraint("Equal", 3, 5),
    Sketcher.Constraint("Equal", 4, 6),
    Sketcher.Constraint("Equal", 5, 7),
    Sketcher.Constraint("Horizontal", 3, 3, 4, 3),
    Sketcher.Constraint("Horizontal", 1, 3, 6, 3),
    Sketcher.Constraint("Vertical", 1, 3, 2, 3),
    Sketcher.Constraint("Vertical", 5, 3, 6, 3),
    Sketcher.Constraint("Diameter", 0, 6.0),
    Sketcher.Constraint("Diameter", 1, 4.0),
    Sketcher.Constraint("DistanceY", 0, 3, 2, 3, 40.0),
    Sketcher.Constraint("DistanceX", 2, 3, 4, 3, 115.0),
    Sketcher.Constraint("DistanceX", 0, 3, -1, 1, 47.748344),
    Sketcher.Constraint("DistanceY", 0, 3, -1, 1, 19.039735),
])
pad5 = body.newObject("PartDesign::Pad", "Pad004")
pad5.Profile = sketch11
pad5.Length = 2.5
pad5.Reversed = True

doc.recompute()
